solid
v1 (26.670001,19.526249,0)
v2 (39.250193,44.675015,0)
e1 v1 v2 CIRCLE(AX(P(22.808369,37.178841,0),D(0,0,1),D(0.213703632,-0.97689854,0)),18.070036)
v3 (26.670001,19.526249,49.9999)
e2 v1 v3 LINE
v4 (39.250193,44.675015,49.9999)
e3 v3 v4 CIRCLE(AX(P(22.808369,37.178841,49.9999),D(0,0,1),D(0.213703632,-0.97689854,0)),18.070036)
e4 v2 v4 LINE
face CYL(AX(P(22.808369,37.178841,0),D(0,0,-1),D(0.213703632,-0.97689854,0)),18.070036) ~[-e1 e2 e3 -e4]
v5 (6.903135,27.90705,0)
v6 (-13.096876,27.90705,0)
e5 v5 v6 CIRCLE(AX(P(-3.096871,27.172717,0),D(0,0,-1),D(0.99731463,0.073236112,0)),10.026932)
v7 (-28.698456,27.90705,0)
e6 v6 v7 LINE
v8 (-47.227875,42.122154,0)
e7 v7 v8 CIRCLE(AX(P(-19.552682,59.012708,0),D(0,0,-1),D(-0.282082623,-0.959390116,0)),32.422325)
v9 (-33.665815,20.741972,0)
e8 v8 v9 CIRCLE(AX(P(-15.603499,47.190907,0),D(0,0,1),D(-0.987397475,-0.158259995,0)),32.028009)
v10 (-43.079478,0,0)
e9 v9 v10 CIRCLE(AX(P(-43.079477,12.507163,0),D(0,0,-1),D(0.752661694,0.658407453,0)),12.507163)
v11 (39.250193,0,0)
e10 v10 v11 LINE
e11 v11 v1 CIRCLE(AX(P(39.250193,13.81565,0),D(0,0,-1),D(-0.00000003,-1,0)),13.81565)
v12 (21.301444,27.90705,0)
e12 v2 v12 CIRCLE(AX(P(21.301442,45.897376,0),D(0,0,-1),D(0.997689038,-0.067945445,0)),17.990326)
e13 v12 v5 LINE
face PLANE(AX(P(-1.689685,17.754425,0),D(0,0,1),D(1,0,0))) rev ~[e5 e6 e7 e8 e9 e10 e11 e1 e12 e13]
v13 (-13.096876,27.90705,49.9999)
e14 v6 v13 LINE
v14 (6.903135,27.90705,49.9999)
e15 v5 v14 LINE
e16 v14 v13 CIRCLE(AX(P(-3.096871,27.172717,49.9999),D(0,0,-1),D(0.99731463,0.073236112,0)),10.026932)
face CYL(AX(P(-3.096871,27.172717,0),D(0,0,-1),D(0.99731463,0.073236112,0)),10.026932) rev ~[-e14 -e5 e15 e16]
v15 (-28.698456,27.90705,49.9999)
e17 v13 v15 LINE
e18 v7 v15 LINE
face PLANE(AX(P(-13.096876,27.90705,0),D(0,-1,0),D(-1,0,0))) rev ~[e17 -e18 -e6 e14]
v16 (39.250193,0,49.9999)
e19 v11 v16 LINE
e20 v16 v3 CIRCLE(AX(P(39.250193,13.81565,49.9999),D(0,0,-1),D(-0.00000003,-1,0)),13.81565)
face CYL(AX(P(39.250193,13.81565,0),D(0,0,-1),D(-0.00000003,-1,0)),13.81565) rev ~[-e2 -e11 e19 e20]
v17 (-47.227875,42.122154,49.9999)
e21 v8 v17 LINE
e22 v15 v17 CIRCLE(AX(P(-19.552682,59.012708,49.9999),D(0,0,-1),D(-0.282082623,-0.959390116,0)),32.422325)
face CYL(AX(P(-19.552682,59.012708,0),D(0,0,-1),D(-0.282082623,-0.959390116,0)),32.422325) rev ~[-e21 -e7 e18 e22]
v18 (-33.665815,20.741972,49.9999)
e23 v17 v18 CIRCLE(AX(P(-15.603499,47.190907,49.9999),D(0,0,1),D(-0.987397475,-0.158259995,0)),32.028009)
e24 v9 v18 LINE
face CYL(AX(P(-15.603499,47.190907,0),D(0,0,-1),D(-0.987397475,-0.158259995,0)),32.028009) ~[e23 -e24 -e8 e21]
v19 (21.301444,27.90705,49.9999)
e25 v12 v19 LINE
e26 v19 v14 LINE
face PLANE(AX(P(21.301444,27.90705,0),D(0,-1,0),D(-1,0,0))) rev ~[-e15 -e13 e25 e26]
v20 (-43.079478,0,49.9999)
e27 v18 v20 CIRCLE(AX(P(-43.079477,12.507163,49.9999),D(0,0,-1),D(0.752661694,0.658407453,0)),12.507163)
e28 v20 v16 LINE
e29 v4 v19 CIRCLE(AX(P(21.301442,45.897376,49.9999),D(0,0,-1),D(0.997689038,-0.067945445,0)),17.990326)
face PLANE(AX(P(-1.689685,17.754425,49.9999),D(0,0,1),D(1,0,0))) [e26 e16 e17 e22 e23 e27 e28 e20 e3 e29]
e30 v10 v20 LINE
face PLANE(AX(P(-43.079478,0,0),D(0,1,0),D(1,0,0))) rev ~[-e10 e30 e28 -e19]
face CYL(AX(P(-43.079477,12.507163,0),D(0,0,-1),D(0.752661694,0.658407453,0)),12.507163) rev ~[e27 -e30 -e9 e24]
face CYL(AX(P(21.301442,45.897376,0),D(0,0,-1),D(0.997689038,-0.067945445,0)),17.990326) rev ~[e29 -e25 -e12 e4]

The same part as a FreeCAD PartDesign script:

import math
import FreeCAD as App
import Part
import Sketcher

V = App.Vector
Q = App.Units.Quantity

doc = App.newDocument("Part")
params = doc.addObject("Spreadsheet::Sheet", "Params")
for row, (alias, value) in enumerate([
    ("pad1_length", "49.9999 mm"),
], start=1):
    params.set(f"A{row}", alias)
    params.set(f"B{row}", "=" + value)
    params.setAlias(f"B{row}", alias)

body = doc.addObject("PartDesign::Body", "Body")

# Sketch on XY plane
sketch1 = body.newObject("Sketcher::SketchObject", "Sketch")
sketch1.AttachmentSupport = (doc.getObject("XY_Plane"), [""])
sketch1.MapMode = "FlatFace"
sketch1.addGeometry([
    Part.ArcOfCircle(Part.Circle(V(-43, 13, 0), V(0, 0, 1), 13), math.radians(-90), math.radians(41)),  # 0
    Part.LineSegment(V(-43, 0, 0), V(39, 0, 0)),  # 1
    Part.ArcOfCircle(Part.Circle(V(39, 14, 0), V(0, 0, 1), 14), math.radians(156), math.radians(270)),  # 2
    Part.ArcOfCircle(Part.Circle(V(23, 37, 0), V(0, 0, 1), 18), math.radians(-78), math.radians(25)),  # 3
    Part.ArcOfCircle(Part.Circle(V(21, 46, 0), V(0, 0, 1), 18), math.radians(-90), math.radians(-4)),  # 4
    Part.LineSegment(V(21, 28, 0), V(7, 28, 0)),  # 5
    Part.ArcOfCircle(Part.Circle(V(-3, 27, 0), V(0, 0, 1), 10), math.radians(176), math.radians(364)),  # 6
    Part.LineSegment(V(-13, 28, 0), V(-29, 28, 0)),  # 7
    Part.ArcOfCircle(Part.Circle(V(-20, 59, 0), V(0, 0, 1), 32), math.radians(-149), math.radians(-106)),  # 8
    Part.ArcOfCircle(Part.Circle(V(-16, 47, 0), V(0, 0, 1), 32), math.radians(-171), math.radians(-124)),  # 9
], False)
sketch1.addConstraint([
    Sketcher.Constraint("Tangent", 0, 1, 1, 1),
    Sketcher.Constraint("Tangent", 1, 2, 2, 2),
    Sketcher.Constraint("Coincident", 2, 1, 3, 1),
    Sketcher.Constraint("Coincident", 3, 2, 4, 2),
    Sketcher.Constraint("Tangent", 4, 1, 5, 1),
    Sketcher.Constraint("Coincident", 5, 2, 6, 2),
    Sketcher.Constraint("Coincident", 6, 1, 7, 1),
    Sketcher.Constraint("Coincident", 7, 2, 8, 2),
    Sketcher.Constraint("Coincident", 8, 1, 9, 1),
    Sketcher.Constraint("Coincident", 9, 2, 0, 2),
    Sketcher.Constraint("Horizontal", 1),
    Sketcher.Constraint("Horizontal", 5),
    Sketcher.Constraint("Horizontal", 7),
    Sketcher.Constraint("PointOnObject", 0, 1, -1),
    Sketcher.Constraint("Horizontal", 5, 2, 6, 1),
    Sketcher.Constraint("Vertical", 1, 2, 3, 2),
    Sketcher.Constraint("DistanceX", -1, 1, 2, 1, Q("26.670001 mm")),
    Sketcher.Constraint("Radius", 2, Q("13.81565 mm")),
    Sketcher.Constraint("Radius", 6, Q("10.026932 mm")),
    Sketcher.Constraint("Radius", 9, Q("32.028009 mm")),
    Sketcher.Constraint("Radius", 0, Q("12.507163 mm")),
    Sketcher.Constraint("Radius", 3, Q("18.070036 mm")),
    Sketcher.Constraint("Radius", 4, Q("17.990326 mm")),
    Sketcher.Constraint("Radius", 8, Q("32.422325 mm")),
    Sketcher.Constraint("DistanceX", 8, 1, 6, 1, Q("34.130999 mm")),
    Sketcher.Constraint("DistanceX", 1, 1, 1, 2, Q("82.329671 mm")),
    Sketcher.Constraint("DistanceX", 5, 2, 5, 1, Q("14.398309 mm")),
    Sketcher.Constraint("DistanceX", 7, 2, 7, 1, Q("15.60158 mm")),
    Sketcher.Constraint("DistanceX", 9, 3, -1, 1, Q("15.603499 mm")),
    Sketcher.Constraint("DistanceY", 9, 3, 8, 3, Q("11.821801 mm")),
    Sketcher.Constraint("DistanceY", 2, 3, 2, 1, Q("5.710599 mm")),
    Sketcher.Constraint("DistanceY", 2, 1, 4, 1, Q("8.380801 mm")),
    Sketcher.Constraint("DistanceX", 0, 3, 6, 1, Q("29.982601 mm")),
    Sketcher.Constraint("DistanceX", -1, 1, 3, 3, Q("22.808369 mm")),
])
pad1 = body.newObject("PartDesign::Pad", "Pad")
pad1.Profile = sketch1
pad1.setExpression("Length", "Params.pad1_length")

doc.recompute()
